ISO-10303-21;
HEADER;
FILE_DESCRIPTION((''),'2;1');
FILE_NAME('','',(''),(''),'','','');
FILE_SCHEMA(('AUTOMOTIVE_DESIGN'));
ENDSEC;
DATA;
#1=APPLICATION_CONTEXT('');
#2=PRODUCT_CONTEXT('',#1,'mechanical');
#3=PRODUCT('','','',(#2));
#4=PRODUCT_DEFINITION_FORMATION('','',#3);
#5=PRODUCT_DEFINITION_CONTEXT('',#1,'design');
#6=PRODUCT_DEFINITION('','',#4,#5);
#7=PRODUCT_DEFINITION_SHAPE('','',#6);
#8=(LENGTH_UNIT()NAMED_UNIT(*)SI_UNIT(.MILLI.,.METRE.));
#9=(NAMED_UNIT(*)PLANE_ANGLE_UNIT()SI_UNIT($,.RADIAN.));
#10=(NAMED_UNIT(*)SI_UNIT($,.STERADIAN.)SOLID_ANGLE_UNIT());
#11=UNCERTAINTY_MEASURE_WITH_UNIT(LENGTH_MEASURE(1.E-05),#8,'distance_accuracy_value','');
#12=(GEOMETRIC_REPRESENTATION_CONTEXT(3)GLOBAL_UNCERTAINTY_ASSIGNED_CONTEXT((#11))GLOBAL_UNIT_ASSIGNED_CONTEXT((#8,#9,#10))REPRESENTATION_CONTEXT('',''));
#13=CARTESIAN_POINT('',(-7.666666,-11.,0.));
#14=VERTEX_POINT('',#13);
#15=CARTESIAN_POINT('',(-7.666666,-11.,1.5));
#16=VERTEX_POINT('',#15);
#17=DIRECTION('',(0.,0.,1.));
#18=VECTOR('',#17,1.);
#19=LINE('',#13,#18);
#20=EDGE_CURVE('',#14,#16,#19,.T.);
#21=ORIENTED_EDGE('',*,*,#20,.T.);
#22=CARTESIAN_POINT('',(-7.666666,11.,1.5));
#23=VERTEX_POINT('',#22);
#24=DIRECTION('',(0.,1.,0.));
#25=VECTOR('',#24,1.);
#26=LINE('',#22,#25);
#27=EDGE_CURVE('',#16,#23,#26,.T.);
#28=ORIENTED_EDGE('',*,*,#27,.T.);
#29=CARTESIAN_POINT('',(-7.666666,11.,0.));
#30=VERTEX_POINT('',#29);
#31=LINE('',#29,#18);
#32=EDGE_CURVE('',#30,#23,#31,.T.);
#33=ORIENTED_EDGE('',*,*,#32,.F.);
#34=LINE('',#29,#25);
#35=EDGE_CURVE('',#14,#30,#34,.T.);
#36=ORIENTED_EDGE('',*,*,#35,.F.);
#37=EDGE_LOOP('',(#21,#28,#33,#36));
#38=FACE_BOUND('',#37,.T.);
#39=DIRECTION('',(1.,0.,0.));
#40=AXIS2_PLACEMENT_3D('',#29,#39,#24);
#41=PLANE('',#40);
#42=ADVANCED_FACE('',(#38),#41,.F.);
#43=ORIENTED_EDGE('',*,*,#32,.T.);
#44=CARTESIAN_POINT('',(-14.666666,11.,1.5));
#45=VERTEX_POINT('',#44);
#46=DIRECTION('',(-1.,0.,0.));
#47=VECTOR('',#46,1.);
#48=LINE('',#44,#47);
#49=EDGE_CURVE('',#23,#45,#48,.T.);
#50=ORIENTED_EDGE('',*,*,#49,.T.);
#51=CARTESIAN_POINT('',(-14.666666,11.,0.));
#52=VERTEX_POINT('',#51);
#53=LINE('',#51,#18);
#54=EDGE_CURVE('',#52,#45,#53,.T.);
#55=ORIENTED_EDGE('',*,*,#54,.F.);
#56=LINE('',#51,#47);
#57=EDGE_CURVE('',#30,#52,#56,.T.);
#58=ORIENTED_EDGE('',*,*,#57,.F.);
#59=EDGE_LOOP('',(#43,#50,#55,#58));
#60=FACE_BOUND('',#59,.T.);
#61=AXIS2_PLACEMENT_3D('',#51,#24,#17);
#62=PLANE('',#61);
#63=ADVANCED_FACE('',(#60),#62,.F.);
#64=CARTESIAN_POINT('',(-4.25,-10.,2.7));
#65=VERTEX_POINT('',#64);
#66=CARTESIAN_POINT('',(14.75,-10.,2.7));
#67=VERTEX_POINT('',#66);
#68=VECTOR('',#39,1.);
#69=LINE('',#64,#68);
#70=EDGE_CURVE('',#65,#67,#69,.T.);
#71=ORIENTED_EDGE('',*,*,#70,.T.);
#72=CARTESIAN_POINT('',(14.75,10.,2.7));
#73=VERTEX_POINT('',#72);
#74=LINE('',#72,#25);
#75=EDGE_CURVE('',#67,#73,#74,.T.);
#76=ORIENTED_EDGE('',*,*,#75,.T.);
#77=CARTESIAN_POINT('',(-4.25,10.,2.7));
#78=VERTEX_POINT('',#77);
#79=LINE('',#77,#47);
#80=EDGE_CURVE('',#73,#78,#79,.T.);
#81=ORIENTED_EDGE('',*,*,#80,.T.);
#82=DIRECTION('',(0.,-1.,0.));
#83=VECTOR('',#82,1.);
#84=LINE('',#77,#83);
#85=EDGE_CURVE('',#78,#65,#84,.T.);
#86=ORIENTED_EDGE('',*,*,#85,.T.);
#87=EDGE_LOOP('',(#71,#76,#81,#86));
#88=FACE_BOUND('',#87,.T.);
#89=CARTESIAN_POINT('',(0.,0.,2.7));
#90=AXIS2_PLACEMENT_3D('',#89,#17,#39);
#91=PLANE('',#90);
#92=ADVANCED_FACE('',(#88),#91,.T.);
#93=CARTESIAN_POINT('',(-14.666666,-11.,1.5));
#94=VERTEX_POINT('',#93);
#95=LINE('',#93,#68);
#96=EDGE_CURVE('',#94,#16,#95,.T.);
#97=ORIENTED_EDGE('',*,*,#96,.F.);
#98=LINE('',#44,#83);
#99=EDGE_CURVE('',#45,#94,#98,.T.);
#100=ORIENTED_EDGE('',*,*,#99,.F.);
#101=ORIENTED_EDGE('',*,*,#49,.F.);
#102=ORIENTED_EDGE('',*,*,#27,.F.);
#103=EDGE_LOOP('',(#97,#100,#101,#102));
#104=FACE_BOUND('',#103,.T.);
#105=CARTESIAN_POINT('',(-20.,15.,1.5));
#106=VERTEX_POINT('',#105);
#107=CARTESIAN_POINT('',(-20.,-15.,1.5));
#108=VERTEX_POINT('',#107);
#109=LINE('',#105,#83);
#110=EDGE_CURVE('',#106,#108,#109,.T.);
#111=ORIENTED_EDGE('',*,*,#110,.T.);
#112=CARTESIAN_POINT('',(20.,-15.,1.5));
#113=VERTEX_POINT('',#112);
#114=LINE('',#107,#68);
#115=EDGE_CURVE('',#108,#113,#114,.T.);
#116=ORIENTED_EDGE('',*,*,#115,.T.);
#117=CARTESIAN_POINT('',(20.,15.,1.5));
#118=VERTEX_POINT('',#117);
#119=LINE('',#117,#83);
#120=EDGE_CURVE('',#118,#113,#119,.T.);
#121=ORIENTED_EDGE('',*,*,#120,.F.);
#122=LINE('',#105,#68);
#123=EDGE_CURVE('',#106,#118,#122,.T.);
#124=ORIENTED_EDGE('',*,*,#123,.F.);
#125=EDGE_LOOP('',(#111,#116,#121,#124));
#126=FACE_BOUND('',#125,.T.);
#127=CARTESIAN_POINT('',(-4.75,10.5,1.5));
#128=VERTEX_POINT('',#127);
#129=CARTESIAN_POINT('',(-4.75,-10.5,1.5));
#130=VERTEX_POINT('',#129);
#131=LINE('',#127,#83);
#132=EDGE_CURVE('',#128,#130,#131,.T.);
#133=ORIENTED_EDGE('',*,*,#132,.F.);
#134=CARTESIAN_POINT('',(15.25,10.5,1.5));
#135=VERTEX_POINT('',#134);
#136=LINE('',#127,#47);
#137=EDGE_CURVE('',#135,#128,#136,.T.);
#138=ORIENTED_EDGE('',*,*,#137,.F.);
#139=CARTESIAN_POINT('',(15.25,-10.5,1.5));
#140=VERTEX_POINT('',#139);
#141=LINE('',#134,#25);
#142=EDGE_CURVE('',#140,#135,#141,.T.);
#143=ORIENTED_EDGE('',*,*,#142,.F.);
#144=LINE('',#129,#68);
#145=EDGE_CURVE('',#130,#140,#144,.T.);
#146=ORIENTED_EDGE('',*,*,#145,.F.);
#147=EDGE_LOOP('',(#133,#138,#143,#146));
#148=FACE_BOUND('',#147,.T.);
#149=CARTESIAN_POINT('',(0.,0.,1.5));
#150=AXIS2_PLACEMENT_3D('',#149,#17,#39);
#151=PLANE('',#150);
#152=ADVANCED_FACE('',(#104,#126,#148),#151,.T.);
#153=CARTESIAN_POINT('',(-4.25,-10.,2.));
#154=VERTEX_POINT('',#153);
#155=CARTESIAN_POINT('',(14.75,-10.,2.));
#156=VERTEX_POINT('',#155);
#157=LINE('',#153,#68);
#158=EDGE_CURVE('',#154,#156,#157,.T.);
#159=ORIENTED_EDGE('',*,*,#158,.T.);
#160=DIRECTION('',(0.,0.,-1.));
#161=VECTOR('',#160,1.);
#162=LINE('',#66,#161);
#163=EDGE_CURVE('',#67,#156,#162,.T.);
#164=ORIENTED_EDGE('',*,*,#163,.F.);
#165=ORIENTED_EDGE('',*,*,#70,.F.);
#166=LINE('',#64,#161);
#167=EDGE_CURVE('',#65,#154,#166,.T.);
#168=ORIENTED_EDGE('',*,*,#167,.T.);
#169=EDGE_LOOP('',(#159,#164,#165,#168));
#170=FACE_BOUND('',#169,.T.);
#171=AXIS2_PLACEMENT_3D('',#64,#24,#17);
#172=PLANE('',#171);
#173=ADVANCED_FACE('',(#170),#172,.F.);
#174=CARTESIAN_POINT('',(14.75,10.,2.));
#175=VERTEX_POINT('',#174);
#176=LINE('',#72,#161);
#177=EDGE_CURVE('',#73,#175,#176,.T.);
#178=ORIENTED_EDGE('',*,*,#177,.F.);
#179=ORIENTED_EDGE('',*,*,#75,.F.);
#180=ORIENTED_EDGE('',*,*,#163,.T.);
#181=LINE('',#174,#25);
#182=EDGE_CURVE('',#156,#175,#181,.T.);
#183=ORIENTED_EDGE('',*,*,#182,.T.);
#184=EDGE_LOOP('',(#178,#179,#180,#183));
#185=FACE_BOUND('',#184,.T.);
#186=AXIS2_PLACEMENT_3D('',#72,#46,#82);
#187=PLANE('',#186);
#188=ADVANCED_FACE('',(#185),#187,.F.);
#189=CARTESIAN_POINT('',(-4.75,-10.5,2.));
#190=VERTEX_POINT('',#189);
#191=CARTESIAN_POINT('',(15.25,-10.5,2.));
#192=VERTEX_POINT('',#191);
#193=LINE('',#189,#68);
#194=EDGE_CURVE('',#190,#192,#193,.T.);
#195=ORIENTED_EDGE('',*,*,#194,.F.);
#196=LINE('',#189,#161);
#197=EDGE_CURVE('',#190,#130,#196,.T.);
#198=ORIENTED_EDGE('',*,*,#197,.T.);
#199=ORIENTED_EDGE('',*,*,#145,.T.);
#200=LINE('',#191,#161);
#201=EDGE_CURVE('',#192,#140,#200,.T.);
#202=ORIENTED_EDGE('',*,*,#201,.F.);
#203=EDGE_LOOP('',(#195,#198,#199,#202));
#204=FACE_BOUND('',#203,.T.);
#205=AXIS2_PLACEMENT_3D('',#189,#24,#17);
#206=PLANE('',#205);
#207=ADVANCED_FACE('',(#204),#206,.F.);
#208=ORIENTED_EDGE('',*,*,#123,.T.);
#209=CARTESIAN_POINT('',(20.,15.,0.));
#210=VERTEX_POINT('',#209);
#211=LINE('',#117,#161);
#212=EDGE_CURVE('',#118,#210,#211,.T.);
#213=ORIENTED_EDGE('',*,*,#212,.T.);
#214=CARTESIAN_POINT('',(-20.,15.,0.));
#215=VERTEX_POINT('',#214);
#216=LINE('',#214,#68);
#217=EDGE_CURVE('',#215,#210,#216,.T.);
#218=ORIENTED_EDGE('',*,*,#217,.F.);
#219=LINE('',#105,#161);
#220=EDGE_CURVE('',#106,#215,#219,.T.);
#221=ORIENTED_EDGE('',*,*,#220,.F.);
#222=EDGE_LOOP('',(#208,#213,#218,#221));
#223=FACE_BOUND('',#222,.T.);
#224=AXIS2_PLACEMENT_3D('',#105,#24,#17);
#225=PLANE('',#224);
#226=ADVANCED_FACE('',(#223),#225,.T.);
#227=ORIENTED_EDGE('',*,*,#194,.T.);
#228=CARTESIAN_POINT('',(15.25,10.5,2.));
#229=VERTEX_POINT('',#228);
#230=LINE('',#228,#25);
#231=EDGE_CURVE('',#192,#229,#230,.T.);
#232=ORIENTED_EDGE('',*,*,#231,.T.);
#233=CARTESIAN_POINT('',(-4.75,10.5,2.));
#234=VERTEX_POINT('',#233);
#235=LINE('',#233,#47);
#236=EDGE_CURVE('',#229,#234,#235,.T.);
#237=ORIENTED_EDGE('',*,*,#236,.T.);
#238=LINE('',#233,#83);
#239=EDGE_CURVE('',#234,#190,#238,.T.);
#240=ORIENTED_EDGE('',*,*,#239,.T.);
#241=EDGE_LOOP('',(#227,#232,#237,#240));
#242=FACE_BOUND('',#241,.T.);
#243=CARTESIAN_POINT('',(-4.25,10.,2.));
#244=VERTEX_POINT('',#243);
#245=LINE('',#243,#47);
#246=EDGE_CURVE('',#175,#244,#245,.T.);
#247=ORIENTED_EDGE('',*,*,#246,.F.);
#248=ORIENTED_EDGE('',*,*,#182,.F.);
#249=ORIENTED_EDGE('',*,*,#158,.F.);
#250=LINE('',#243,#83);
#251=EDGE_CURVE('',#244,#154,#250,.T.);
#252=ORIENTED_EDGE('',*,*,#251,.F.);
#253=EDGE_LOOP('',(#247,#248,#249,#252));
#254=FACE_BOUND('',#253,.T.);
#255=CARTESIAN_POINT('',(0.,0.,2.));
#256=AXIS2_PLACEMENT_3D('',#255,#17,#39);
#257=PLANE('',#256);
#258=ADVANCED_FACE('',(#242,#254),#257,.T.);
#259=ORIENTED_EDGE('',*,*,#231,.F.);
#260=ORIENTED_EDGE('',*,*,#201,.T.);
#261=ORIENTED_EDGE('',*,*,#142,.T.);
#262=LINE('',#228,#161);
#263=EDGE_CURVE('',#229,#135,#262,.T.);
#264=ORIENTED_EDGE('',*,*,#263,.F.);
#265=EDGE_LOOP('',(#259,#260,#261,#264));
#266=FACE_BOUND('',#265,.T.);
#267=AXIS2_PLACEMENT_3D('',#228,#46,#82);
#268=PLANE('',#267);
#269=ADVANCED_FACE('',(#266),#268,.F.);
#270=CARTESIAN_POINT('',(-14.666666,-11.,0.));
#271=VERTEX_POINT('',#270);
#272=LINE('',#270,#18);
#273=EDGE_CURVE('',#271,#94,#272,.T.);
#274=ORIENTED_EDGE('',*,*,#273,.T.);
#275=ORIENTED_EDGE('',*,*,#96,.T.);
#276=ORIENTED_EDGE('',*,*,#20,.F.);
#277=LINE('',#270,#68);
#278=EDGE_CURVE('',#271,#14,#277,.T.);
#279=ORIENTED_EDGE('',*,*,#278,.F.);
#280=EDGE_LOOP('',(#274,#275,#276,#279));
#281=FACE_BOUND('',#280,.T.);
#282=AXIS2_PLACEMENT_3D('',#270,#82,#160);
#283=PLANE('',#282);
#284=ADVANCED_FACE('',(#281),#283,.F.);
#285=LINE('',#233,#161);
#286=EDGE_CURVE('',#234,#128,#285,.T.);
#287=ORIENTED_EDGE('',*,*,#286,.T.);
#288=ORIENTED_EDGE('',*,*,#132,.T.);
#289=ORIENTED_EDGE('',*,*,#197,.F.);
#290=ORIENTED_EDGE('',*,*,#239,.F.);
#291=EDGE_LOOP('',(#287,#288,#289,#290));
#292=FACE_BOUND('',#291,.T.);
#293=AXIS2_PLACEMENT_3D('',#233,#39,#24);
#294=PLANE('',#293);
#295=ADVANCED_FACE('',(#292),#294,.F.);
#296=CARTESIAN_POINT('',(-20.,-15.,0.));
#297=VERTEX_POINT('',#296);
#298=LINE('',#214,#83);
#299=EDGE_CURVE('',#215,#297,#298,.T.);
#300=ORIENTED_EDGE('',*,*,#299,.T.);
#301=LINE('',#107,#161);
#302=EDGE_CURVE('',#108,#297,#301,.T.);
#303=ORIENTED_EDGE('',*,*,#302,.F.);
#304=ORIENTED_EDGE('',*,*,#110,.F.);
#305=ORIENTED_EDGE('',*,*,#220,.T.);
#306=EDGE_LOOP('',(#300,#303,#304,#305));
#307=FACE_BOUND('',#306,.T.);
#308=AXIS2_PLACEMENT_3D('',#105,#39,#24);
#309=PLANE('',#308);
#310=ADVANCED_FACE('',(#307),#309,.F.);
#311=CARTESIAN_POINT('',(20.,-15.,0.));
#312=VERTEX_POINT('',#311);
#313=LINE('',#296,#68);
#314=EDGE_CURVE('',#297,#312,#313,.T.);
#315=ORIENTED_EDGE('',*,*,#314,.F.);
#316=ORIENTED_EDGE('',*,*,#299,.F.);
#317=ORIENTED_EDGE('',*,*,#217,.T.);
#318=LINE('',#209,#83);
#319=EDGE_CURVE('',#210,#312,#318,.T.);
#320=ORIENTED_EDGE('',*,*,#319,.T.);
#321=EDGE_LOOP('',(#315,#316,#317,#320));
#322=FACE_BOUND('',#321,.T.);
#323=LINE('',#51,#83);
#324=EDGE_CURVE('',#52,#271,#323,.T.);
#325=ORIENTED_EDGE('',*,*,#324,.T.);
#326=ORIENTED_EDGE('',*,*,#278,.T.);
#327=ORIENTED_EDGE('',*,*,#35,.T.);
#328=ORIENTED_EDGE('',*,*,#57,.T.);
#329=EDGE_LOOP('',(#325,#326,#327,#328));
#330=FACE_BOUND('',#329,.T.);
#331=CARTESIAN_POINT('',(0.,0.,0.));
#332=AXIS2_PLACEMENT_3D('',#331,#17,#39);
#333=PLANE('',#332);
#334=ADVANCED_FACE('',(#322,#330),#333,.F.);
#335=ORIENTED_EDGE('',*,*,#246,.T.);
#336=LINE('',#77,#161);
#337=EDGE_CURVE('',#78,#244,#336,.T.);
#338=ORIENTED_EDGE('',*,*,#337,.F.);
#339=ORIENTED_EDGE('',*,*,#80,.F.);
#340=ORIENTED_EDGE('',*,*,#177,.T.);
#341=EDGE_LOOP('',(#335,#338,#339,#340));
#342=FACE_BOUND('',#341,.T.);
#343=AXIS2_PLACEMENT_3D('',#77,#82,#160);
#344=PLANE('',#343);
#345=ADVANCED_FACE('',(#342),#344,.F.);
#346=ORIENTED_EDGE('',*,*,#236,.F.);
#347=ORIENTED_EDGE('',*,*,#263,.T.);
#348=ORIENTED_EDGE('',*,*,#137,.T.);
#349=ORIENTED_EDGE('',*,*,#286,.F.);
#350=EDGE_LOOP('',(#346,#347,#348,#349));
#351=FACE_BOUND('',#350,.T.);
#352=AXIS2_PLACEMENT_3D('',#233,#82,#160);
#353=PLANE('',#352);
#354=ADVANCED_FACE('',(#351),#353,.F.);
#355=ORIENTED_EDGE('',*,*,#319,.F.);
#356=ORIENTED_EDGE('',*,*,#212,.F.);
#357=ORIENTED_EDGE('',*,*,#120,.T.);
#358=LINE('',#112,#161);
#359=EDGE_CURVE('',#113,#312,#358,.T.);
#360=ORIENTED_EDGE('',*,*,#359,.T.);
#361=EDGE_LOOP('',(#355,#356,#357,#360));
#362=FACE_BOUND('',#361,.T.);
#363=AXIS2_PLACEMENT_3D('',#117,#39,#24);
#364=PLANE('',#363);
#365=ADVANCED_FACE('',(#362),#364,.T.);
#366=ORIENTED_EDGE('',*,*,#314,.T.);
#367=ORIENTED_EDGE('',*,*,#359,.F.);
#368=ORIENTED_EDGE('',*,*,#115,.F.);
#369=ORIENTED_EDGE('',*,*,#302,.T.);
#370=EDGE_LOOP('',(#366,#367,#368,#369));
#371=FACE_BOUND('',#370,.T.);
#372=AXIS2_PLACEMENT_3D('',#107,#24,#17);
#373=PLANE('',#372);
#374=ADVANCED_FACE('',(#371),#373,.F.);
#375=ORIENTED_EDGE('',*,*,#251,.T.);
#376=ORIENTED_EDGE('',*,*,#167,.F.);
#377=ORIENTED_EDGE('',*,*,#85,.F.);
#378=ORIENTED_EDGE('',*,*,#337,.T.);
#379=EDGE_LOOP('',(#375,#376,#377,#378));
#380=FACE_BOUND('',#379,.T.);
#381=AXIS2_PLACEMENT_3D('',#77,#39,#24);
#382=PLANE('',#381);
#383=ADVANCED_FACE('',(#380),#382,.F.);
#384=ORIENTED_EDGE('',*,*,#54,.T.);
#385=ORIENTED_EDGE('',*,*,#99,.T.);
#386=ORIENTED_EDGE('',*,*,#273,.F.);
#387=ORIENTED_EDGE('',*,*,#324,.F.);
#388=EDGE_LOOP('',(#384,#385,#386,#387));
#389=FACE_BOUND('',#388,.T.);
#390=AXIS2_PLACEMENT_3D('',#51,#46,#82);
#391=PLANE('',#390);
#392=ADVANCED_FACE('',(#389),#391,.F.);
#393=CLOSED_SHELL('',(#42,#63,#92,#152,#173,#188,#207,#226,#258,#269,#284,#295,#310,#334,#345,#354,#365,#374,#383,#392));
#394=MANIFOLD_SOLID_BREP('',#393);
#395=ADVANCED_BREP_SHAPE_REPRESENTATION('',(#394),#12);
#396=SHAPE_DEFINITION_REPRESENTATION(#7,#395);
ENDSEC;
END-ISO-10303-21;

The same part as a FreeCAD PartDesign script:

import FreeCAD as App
import Part
import Sketcher

doc = App.newDocument("Part")
body = doc.addObject("PartDesign::Body", "Body")

sketch1 = doc.addObject("Sketcher::SketchObject", "Sketch")
body.addObject(sketch1)
sketch1.AttachmentSupport = (doc.XY_Plane, [""])
sketch1.MapMode = "FlatFace"
sketch1.addGeometry([
    Part.LineSegment(App.Vector(-20, 15, 0), App.Vector(-20, -15, 0)),
    Part.LineSegment(App.Vector(-20, -15, 0), App.Vector(20, -15, 0)),
    Part.LineSegment(App.Vector(20, -15, 0), App.Vector(20, 15, 0)),
    Part.LineSegment(App.Vector(20, 15, 0), App.Vector(-20, 15, 0)),
], False)
sketch1.addConstraint([
    Sketcher.Constraint("Coincident", 0, 2, 1, 1),
    Sketcher.Constraint("Coincident", 1, 2, 2, 1),
    Sketcher.Constraint("Coincident", 2, 2, 3, 1),
    Sketcher.Constraint("Coincident", 3, 2, 0, 1),
    Sketcher.Constraint("Vertical", 0),
    Sketcher.Constraint("Horizontal", 1),
    Sketcher.Constraint("Vertical", 2),
    Sketcher.Constraint("Horizontal", 3),
    Sketcher.Constraint("Symmetric", 0, 2, 2, 2, -1, 1),
    Sketcher.Constraint("DistanceX", 1, 1, 1, 2, 40.0),
    Sketcher.Constraint("DistanceY", 0, 2, 0, 1, 30.0),
])
pad1 = doc.addObject("PartDesign::Pad", "Pad")
body.addObject(pad1)
pad1.Profile = sketch1
pad1.Length = 1.5

sketch2 = doc.addObject("Sketcher::SketchObject", "Sketch001")
body.addObject(sketch2)
sketch2.AttachmentSupport = (doc.XY_Plane, [""])
sketch2.MapMode = "FlatFace"
sketch2.AttachmentOffset = App.Placement(App.Vector(0, 0, 1.5), App.Rotation())
sketch2.addGeometry([
    Part.LineSegment(App.Vector(-5, 10, 0), App.Vector(-5, -10, 0)),
    Part.LineSegment(App.Vector(-5, -10, 0), App.Vector(15, -10, 0)),
    Part.LineSegment(App.Vector(15, -10, 0), App.Vector(15, 10, 0)),
    Part.LineSegment(App.Vector(15, 10, 0), App.Vector(-5, 10, 0)),
], False)
sketch2.addConstraint([
    Sketcher.Constraint("Coincident", 0, 2, 1, 1),
    Sketcher.Constraint("Coincident", 1, 2, 2, 1),
    Sketcher.Constraint("Coincident", 2, 2, 3, 1),
    Sketcher.Constraint("Coincident", 3, 2, 0, 1),
    Sketcher.Constraint("Vertical", 0),
    Sketcher.Constraint("Horizontal", 1),
    Sketcher.Constraint("Vertical", 2),
    Sketcher.Constraint("Horizontal", 3),
    Sketcher.Constraint("DistanceX", 1, 1, 1, 2, 20.0),
    Sketcher.Constraint("DistanceY", 0, 2, 0, 1, 21.0),
    Sketcher.Constraint("DistanceY", 0, 2, -1, 1, 10.5),
    Sketcher.Constraint("DistanceX", 0, 2, -1, 1, 4.75),
])
pad2 = doc.addObject("PartDesign::Pad", "Pad001")
body.addObject(pad2)
pad2.Profile = sketch2
pad2.Length = 0.5

sketch3 = doc.addObject("Sketcher::SketchObject", "Sketch002")
body.addObject(sketch3)
sketch3.AttachmentSupport = (doc.XY_Plane, [""])
sketch3.MapMode = "FlatFace"
sketch3.AttachmentOffset = App.Placement(App.Vector(0, 0, 2), App.Rotation())
sketch3.addGeometry([
    Part.LineSegment(App.Vector(-4, 10, 0), App.Vector(-4, -10, 0)),
    Part.LineSegment(App.Vector(-4, -10, 0), App.Vector(15, -10, 0)),
    Part.LineSegment(App.Vector(15, -10, 0), App.Vector(15, 10, 0)),
    Part.LineSegment(App.Vector(15, 10, 0), App.Vector(-4, 10, 0)),
], False)
sketch3.addConstraint([
    Sketcher.Constraint("Coincident", 0, 2, 1, 1),
    Sketcher.Constraint("Coincident", 1, 2, 2, 1),
    Sketcher.Constraint("Coincident", 2, 2, 3, 1),
    Sketcher.Constraint("Coincident", 3, 2, 0, 1),
    Sketcher.Constraint("Vertical", 0),
    Sketcher.Constraint("Horizontal", 1),
    Sketcher.Constraint("Vertical", 2),
    Sketcher.Constraint("Horizontal", 3),
    Sketcher.Constraint("DistanceX", 1, 1, 1, 2, 19.0),
    Sketcher.Constraint("DistanceY", 0, 2, 0, 1, 20.0),
    Sketcher.Constraint("DistanceY", 0, 2, -1, 1, 10.0),
    Sketcher.Constraint("DistanceX", 0, 2, -1, 1, 4.25),
])
pad3 = doc.addObject("PartDesign::Pad", "Pad002")
body.addObject(pad3)
pad3.Profile = sketch3
pad3.Length = 0.7

sketch4 = doc.addObject("Sketcher::SketchObject", "Sketch003")
body.addObject(sketch4)
sketch4.AttachmentSupport = (doc.XY_Plane, [""])
sketch4.MapMode = "FlatFace"
sketch4.AttachmentOffset = App.Placement(App.Vector(0, 0, 1.5), App.Rotation())
sketch4.addGeometry([
    Part.LineSegment(App.Vector(-15, 11, 0), App.Vector(-15, -11, 0)),
    Part.LineSegment(App.Vector(-15, -11, 0), App.Vector(-8, -11, 0)),
    Part.LineSegment(App.Vector(-8, -11, 0), App.Vector(-8, 11, 0)),
    Part.LineSegment(App.Vector(-8, 11, 0), App.Vector(-15, 11, 0)),
], False)
sketch4.addConstraint([
    Sketcher.Constraint("Coincident", 0, 2, 1, 1),
    Sketcher.Constraint("Coincident", 1, 2, 2, 1),
    Sketcher.Constraint("Coincident", 2, 2, 3, 1),
    Sketcher.Constraint("Coincident", 3, 2, 0, 1),
    Sketcher.Constraint("Vertical", 0),
    Sketcher.Constraint("Horizontal", 1),
    Sketcher.Constraint("Vertical", 2),
    Sketcher.Constraint("Horizontal", 3),
    Sketcher.Constraint("DistanceX", 1, 1, 1, 2, 7.0),
    Sketcher.Constraint("DistanceY", 0, 2, 0, 1, 22.0),
    Sketcher.Constraint("DistanceY", 0, 2, -1, 1, 11.0),
    Sketcher.Constraint("DistanceX", 0, 2, -1, 1, 14.666666),
])
pocket1 = doc.addObject("PartDesign::Pocket", "Pocket")
body.addObject(pocket1)
pocket1.Profile = sketch4
pocket1.Length = 1.5

doc.recompute()
